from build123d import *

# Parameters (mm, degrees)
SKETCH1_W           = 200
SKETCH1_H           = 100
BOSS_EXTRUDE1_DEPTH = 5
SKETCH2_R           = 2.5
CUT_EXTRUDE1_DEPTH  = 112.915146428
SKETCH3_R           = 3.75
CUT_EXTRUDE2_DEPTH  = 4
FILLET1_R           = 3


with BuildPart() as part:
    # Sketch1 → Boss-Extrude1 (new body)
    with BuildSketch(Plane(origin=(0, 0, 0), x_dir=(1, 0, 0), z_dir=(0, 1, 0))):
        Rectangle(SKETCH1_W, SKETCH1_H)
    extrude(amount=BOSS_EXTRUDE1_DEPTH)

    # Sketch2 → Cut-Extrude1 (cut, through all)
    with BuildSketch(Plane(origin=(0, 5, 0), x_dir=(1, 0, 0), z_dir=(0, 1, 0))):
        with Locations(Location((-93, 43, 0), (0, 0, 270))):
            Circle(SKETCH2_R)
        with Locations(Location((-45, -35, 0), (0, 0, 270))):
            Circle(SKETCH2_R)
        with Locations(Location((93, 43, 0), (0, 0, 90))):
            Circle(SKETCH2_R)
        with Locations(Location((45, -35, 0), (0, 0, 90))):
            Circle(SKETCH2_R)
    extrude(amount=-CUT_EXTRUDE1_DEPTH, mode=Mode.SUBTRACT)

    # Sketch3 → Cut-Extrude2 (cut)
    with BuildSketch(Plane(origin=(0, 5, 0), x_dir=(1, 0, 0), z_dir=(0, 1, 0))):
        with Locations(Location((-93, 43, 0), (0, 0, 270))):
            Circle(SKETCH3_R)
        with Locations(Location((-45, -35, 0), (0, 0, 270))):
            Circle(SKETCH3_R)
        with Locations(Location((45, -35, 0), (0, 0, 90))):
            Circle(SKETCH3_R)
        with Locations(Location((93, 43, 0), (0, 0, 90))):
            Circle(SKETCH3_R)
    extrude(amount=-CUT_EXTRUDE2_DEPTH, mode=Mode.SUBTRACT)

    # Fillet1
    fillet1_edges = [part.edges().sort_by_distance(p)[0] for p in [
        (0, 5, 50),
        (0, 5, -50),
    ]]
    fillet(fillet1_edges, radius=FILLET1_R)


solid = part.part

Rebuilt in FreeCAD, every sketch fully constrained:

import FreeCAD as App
import Part
import Sketcher
Q = App.Units.Quantity


def edges_at(feature, points):
    """Names of the edges that pass closest to the given points."""
    edges = feature.Shape.Edges
    near = lambda p: min(range(len(edges)), key=lambda i: edges[i].distToShape(Part.Vertex(*p))[0])
    return sorted({f"Edge{near(p) + 1}" for p in points})


def add_polygon(sketch, points):
    """Adds a closed chain of lines whose ends are joined by coincident constraints."""
    first, n = sketch.GeometryCount, len(points)
    for a, b in zip(points, points[1:] + points[:1]):
        sketch.addGeometry(Part.LineSegment(App.Vector(*a, 0), App.Vector(*b, 0)), False)
    for i in range(n):
        sketch.addConstraint(Sketcher.Constraint("Coincident", first + i, 2, first + (i + 1) % n, 1))

doc = App.newDocument("Part")
params = doc.addObject("Spreadsheet::Sheet", "Params")
for row, (alias, value) in enumerate([
    ("sketch1_width", "200 mm"),
    ("sketch1_height", "100 mm"),
    ("pad1_length", "5 mm"),
    ("sketch2_diameter", "5 mm"),
    ("sketch3_diameter", "7.5 mm"),
    ("pocket2_length", "4 mm"),
    ("fillet_radius", "3 mm"),
], start=1):
    params.set(f"A{row}", alias)
    params.set(f"B{row}", "=" + value)
    params.setAlias(f"B{row}", alias)

body = doc.addObject("PartDesign::Body", "Body")

# Sketch on XZ plane
sketch1 = doc.addObject("Sketcher::SketchObject", "Sketch")
body.addObject(sketch1)
sketch1.AttachmentSupport = (doc.XZ_Plane, [""])
sketch1.MapMode = "FlatFace"
add_polygon(sketch1, [(-100, -50), (-100, 50), (100, 50), (100, -50)])  # lines 0-3
sketch1.addConstraint(Sketcher.Constraint("Vertical", 0))
sketch1.addConstraint(Sketcher.Constraint("Horizontal", 1))
sketch1.addConstraint(Sketcher.Constraint("Vertical", 2))
sketch1.addConstraint(Sketcher.Constraint("Horizontal", 3))
sketch1.addConstraint(Sketcher.Constraint("Symmetric", 0, 2, 2, 2, -1, 1))
sketch1.addConstraint(Sketcher.Constraint("DistanceX", 1, 1, 1, 2, Q("200 mm")))
sketch1.addConstraint(Sketcher.Constraint("DistanceY", 0, 1, 0, 2, Q("100 mm")))
sketch1.setExpression("Constraints[9]", "Params.sketch1_width")
sketch1.setExpression("Constraints[10]", "Params.sketch1_height")
pad1 = doc.addObject("PartDesign::Pad", "Pad")
body.addObject(pad1)
pad1.Profile = sketch1
pad1.setExpression("Length", "Params.pad1_length")
pad1.Reversed = True

# Sketch on XZ plane
sketch2 = doc.addObject("Sketcher::SketchObject", "Sketch001")
body.addObject(sketch2)
sketch2.AttachmentSupport = (doc.XZ_Plane, [""])
sketch2.MapMode = "FlatFace"
sketch2.AttachmentOffset = App.Placement(App.Vector(0, 0, -5), App.Rotation())
sketch2.addGeometry(Part.Circle(App.Vector(-93, -43, 0), App.Vector(0, 0, 1), 2.5), False)
sketch2.addGeometry(Part.Circle(App.Vector(-45, 35, 0), App.Vector(0, 0, 1), 2.5), False)
sketch2.addGeometry(Part.Circle(App.Vector(93, -43, 0), App.Vector(0, 0, 1), 2.5), False)
sketch2.addGeometry(Part.Circle(App.Vector(45, 35, 0), App.Vector(0, 0, 1), 2.5), False)
sketch2.addConstraint(Sketcher.Constraint("Equal", 0, 1))
sketch2.addConstraint(Sketcher.Constraint("Equal", 1, 2))
sketch2.addConstraint(Sketcher.Constraint("Equal", 2, 3))
sketch2.addConstraint(Sketcher.Constraint("Symmetric", 0, 3, 2, 3, -2))
sketch2.addConstraint(Sketcher.Constraint("Symmetric", 1, 3, 3, 3, -2))
sketch2.addConstraint(Sketcher.Constraint("Diameter", 0, Q("5 mm")))
sketch2.addConstraint(Sketcher.Constraint("DistanceX", 0, 3, -1, 1, Q("93 mm")))
sketch2.addConstraint(Sketcher.Constraint("DistanceY", 0, 3, -1, 1, Q("43 mm")))
sketch2.addConstraint(Sketcher.Constraint("DistanceX", 1, 3, -1, 1, Q("45 mm")))
sketch2.addConstraint(Sketcher.Constraint("DistanceY", -1, 1, 1, 3, Q("35 mm")))
sketch2.setExpression("Constraints[5]", "Params.sketch2_diameter")
pocket1 = doc.addObject("PartDesign::Pocket", "Pocket")
body.addObject(pocket1)
pocket1.Profile = sketch2
pocket1.Type = "ThroughAll"
pocket1.Reversed = True

# Sketch on XZ plane
sketch3 = doc.addObject("Sketcher::SketchObject", "Sketch002")
body.addObject(sketch3)
sketch3.AttachmentSupport = (doc.XZ_Plane, [""])
sketch3.MapMode = "FlatFace"
sketch3.AttachmentOffset = App.Placement(App.Vector(0, 0, -5), App.Rotation())
sketch3.addGeometry(Part.Circle(App.Vector(-93, -43, 0), App.Vector(0, 0, 1), 3.8), False)
sketch3.addGeometry(Part.Circle(App.Vector(-45, 35, 0), App.Vector(0, 0, 1), 3.8), False)
sketch3.addGeometry(Part.Circle(App.Vector(45, 35, 0), App.Vector(0, 0, 1), 3.8), False)
sketch3.addGeometry(Part.Circle(App.Vector(93, -43, 0), App.Vector(0, 0, 1), 3.8), False)
sketch3.addConstraint(Sketcher.Constraint("Equal", 0, 1))
sketch3.addConstraint(Sketcher.Constraint("Equal", 1, 2))
sketch3.addConstraint(Sketcher.Constraint("Equal", 2, 3))
sketch3.addConstraint(Sketcher.Constraint("Symmetric", 1, 3, 2, 3, -2))
sketch3.addConstraint(Sketcher.Constraint("Symmetric", 0, 3, 3, 3, -2))
sketch3.addConstraint(Sketcher.Constraint("Diameter", 0, Q("7.5 mm")))
sketch3.addConstraint(Sketcher.Constraint("DistanceX", 0, 3, -1, 1, Q("93 mm")))
sketch3.addConstraint(Sketcher.Constraint("DistanceY", 0, 3, -1, 1, Q("43 mm")))
sketch3.addConstraint(Sketcher.Constraint("DistanceX", 1, 3, -1, 1, Q("45 mm")))
sketch3.addConstraint(Sketcher.Constraint("DistanceY", -1, 1, 1, 3, Q("35 mm")))
sketch3.setExpression("Constraints[5]", "Params.sketch3_diameter")
pocket2 = doc.addObject("PartDesign::Pocket", "Pocket001")
body.addObject(pocket2)
pocket2.Profile = sketch3
pocket2.setExpression("Length", "Params.pocket2_length")
pocket2.Reversed = True
doc.recompute()

fillet = doc.addObject("PartDesign::Fillet", "Fillet")
body.addObject(fillet)
fillet.Base = (pocket2, edges_at(pocket2, [(0, 5, 50), (0, 5, -50)]))
fillet.setExpression("Radius", "Params.fillet_radius")

doc.recompute()
